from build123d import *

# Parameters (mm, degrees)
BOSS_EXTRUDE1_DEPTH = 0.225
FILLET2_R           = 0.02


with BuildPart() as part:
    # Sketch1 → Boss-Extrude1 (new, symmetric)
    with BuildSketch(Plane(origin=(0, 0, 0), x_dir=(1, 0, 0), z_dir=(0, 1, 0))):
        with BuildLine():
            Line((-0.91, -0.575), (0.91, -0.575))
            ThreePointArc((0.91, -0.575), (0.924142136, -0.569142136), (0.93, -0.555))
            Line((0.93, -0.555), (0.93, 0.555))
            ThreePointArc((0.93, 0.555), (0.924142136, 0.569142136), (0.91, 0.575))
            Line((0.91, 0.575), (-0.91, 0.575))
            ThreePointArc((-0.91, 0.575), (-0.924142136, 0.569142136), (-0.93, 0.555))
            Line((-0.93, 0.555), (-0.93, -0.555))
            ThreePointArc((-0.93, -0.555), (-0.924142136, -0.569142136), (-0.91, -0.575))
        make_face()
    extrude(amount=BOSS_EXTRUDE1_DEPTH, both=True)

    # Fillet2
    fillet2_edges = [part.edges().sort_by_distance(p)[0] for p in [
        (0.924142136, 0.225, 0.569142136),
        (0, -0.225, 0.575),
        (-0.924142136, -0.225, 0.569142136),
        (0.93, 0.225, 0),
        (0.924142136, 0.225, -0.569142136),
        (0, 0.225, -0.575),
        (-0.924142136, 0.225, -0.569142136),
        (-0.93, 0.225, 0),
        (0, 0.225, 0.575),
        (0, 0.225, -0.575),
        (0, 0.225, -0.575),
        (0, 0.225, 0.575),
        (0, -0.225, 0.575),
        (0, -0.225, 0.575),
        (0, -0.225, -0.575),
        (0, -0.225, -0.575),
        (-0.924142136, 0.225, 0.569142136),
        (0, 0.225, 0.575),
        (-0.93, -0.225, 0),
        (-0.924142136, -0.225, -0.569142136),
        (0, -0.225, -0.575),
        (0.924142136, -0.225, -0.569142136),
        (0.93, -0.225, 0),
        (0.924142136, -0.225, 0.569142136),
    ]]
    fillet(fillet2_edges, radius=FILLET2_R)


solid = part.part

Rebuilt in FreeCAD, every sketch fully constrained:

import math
import FreeCAD as App
import Part
import Sketcher
from FreeCAD import Vector

doc = App.newDocument("Part")
body = doc.addObject("PartDesign::Body", "Body")

sketch1 = body.newObject("Sketcher::SketchObject", "Sketch")
sketch1.AttachmentSupport = (doc.getObject("XZ_Plane"), [""])
sketch1.MapMode = "FlatFace"
sketch1.addGeometry([
    Part.LineSegment(Vector(-0.91, 0.575, 0), Vector(0.91, 0.575, 0)),
    Part.ArcOfCircle(Part.Circle(Vector(0.91, 0.555, 0), Vector(0, 0, 1), 0.02), math.radians(0), math.radians(90)),
    Part.LineSegment(Vector(0.93, 0.555, 0), Vector(0.93, -0.555, 0)),
    Part.ArcOfCircle(Part.Circle(Vector(0.91, -0.555, 0), Vector(0, 0, 1), 0.02), math.radians(-90), math.radians(0)),
    Part.LineSegment(Vector(0.91, -0.575, 0), Vector(-0.91, -0.575, 0)),
    Part.ArcOfCircle(Part.Circle(Vector(-0.91, -0.555, 0), Vector(0, 0, 1), 0.02), math.radians(180), math.radians(270)),
    Part.LineSegment(Vector(-0.93, -0.555, 0), Vector(-0.93, 0.555, 0)),
    Part.ArcOfCircle(Part.Circle(Vector(-0.91, 0.555, 0), Vector(0, 0, 1), 0.02), math.radians(90), math.radians(180)),
], False)
sketch1.addConstraint([
    Sketcher.Constraint("Tangent", 0, 2, 1, 2),
    Sketcher.Constraint("Tangent", 1, 1, 2, 1),
    Sketcher.Constraint("Tangent", 2, 2, 3, 2),
    Sketcher.Constraint("Tangent", 3, 1, 4, 1),
    Sketcher.Constraint("Tangent", 4, 2, 5, 2),
    Sketcher.Constraint("Tangent", 5, 1, 6, 1),
    Sketcher.Constraint("Tangent", 6, 2, 7, 2),
    Sketcher.Constraint("Tangent", 7, 1, 0, 1),
    Sketcher.Constraint("Horizontal", 0),
    Sketcher.Constraint("Vertical", 2),
    Sketcher.Constraint("Horizontal", 4),
    Sketcher.Constraint("Vertical", 6),
    Sketcher.Constraint("Equal", 1, 3),
    Sketcher.Constraint("Equal", 3, 5),
    Sketcher.Constraint("Equal", 5, 7),
    Sketcher.Constraint("Symmetric", 1, 3, 5, 3, -1, 1),
    Sketcher.Constraint("Radius", 1, 0.02),
    Sketcher.Constraint("DistanceX", 0, 1, 0, 2, 1.82),
    Sketcher.Constraint("DistanceY", 2, 2, 2, 1, 1.11),
])
pad1 = body.newObject("PartDesign::Pad", "Pad")
pad1.Profile = sketch1
pad1.Length = 0.45
pad1.Midplane = True
doc.recompute()

fillet = body.newObject("PartDesign::Fillet", "Fillet")
fillet.Base = (pad1, ["Edge1"])
fillet.UseAllEdges = True
fillet.Radius = 0.02

doc.recompute()
